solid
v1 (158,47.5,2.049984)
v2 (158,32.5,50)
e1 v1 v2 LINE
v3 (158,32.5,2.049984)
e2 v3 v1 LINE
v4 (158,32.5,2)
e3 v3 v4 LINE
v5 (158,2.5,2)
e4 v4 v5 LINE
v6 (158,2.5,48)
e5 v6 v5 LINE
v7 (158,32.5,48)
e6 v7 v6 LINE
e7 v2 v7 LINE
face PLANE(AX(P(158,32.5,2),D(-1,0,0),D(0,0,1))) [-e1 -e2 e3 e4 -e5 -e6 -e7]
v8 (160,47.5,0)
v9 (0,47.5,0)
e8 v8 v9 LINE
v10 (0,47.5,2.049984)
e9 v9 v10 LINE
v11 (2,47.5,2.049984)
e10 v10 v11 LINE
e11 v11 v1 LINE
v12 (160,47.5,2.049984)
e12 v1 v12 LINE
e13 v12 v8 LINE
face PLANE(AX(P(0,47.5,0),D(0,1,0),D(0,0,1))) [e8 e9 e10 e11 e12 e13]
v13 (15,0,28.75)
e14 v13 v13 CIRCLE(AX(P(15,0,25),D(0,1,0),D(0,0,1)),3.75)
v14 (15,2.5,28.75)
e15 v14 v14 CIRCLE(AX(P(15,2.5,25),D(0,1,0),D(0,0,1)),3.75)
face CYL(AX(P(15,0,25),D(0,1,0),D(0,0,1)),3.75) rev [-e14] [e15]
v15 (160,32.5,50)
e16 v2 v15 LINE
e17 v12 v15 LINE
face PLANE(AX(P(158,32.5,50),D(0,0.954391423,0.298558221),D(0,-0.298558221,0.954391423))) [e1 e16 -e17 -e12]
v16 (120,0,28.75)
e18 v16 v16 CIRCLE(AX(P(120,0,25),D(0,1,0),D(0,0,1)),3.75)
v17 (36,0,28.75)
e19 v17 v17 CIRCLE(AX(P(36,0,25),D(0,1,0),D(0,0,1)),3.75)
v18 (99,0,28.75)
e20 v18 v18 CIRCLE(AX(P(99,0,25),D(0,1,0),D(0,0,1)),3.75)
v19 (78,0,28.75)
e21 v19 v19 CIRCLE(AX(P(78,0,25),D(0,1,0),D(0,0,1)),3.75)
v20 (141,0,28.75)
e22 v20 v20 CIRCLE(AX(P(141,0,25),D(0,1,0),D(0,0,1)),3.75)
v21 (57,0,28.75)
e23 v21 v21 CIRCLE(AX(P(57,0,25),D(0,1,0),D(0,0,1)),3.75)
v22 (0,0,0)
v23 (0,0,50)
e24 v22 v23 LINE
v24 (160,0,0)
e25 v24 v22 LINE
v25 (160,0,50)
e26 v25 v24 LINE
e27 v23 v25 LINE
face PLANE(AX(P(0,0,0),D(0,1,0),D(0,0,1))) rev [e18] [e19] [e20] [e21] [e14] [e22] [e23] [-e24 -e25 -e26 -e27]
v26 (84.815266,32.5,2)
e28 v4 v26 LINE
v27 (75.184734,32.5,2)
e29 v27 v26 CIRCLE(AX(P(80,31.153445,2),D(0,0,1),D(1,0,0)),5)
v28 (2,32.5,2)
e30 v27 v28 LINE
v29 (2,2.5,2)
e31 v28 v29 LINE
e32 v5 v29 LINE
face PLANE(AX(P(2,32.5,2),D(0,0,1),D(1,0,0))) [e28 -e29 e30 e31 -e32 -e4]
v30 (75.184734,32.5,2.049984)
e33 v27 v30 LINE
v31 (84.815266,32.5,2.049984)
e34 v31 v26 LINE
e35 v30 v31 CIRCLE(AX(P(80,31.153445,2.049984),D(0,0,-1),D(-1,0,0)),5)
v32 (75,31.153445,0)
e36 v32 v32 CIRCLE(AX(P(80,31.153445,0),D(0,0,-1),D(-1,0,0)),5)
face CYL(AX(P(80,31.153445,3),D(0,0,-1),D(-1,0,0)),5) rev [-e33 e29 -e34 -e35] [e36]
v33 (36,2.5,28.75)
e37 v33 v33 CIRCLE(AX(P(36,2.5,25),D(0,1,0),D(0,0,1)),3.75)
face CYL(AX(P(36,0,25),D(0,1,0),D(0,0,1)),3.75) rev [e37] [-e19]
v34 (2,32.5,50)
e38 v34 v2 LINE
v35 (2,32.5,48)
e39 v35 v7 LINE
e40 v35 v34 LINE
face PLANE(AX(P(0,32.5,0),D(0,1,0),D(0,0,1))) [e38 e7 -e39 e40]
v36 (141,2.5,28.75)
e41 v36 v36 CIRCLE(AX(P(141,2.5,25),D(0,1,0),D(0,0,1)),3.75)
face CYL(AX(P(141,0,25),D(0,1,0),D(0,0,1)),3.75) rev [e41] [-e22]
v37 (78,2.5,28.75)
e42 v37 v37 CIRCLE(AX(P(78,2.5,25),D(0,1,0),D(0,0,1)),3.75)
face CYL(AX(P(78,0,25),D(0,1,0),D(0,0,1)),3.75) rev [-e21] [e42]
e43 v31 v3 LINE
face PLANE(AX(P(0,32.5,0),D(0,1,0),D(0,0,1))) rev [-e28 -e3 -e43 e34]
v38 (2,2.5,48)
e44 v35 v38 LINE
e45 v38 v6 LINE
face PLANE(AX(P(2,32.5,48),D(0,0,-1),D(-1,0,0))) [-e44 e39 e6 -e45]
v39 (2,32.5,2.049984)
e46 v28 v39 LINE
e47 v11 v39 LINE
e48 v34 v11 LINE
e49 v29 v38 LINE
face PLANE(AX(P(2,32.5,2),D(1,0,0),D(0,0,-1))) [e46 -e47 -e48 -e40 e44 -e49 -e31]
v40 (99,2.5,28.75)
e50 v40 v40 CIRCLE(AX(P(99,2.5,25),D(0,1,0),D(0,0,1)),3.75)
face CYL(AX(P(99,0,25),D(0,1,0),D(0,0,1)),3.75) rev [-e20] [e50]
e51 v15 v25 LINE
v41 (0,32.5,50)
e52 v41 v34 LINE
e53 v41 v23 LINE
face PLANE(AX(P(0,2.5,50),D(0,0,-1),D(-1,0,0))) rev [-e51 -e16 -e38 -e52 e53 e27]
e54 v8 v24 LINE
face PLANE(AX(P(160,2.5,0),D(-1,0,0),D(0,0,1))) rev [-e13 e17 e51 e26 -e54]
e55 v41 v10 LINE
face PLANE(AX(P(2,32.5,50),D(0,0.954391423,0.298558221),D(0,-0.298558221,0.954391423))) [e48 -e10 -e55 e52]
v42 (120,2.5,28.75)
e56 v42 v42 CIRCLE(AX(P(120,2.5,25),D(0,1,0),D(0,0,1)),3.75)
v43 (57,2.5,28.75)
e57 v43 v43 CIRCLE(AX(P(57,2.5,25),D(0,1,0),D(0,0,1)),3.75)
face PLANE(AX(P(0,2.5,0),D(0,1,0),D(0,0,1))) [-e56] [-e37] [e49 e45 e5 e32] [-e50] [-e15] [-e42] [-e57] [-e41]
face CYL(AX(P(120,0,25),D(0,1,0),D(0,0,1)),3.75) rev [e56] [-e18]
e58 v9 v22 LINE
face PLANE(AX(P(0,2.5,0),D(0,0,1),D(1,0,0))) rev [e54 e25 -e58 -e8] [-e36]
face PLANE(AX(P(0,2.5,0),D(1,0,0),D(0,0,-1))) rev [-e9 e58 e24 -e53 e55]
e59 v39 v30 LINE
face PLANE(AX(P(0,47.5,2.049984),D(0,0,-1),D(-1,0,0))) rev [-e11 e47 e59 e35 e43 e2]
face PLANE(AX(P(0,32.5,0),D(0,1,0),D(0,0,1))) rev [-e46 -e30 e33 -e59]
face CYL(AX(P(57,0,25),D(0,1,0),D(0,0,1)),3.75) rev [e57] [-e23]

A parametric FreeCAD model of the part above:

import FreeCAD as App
import Part
import Sketcher
Q = App.Units.Quantity

doc = App.newDocument("Part")
body = doc.addObject("PartDesign::Body", "Body")

sketch1 = body.newObject("Sketcher::SketchObject", "Sketch")
sketch1.AttachmentSupport = (doc.getObject("XZ_Plane"), [""])
sketch1.MapMode = "FlatFace"
sketch1.addGeometry(Part.LineSegment(App.Vector(0, 0, 0), App.Vector(0, 50, 0)), False)
sketch1.addGeometry(Part.LineSegment(App.Vector(0, 50, 0), App.Vector(160, 50, 0)), False)
sketch1.addGeometry(Part.LineSegment(App.Vector(160, 50, 0), App.Vector(160, 0, 0)), False)
sketch1.addGeometry(Part.LineSegment(App.Vector(160, 0, 0), App.Vector(0, 0, 0)), False)
sketch1.addConstraint(Sketcher.Constraint("Coincident", 0, 2, 1, 1))
sketch1.addConstraint(Sketcher.Constraint("Coincident", 1, 2, 2, 1))
sketch1.addConstraint(Sketcher.Constraint("Coincident", 2, 2, 3, 1))
sketch1.addConstraint(Sketcher.Constraint("Coincident", 3, 2, 0, 1))
sketch1.addConstraint(Sketcher.Constraint("Vertical", 0))
sketch1.addConstraint(Sketcher.Constraint("Horizontal", 1))
sketch1.addConstraint(Sketcher.Constraint("Vertical", 2))
sketch1.addConstraint(Sketcher.Constraint("Horizontal", 3))
sketch1.addConstraint(Sketcher.Constraint("Coincident", 3, 2, -1, 1))
sketch1.addConstraint(Sketcher.Constraint("DistanceX", 1, 1, 1, 2, Q("160 mm")))
sketch1.addConstraint(Sketcher.Constraint("DistanceY", 0, 1, 0, 2, Q("50 mm")))
pad1 = body.newObject("PartDesign::Pad", "Pad")
pad1.Profile = sketch1
pad1.Length = 2.5
pad1.Reversed = True

sketch2 = body.newObject("Sketcher::SketchObject", "Sketch001")
sketch2.AttachmentSupport = (doc.getObject("XZ_Plane"), [""])
sketch2.MapMode = "FlatFace"
sketch2.AttachmentOffset = App.Placement(App.Vector(0, 0, -2.5), App.Rotation())
sketch2.addGeometry(Part.Circle(App.Vector(15, 25, 0), App.Vector(0, 0, 1), 3.8), False)
sketch2.addGeometry(Part.Circle(App.Vector(36, 25, 0), App.Vector(0, 0, 1), 3.8), False)
sketch2.addGeometry(Part.Circle(App.Vector(57, 25, 0), App.Vector(0, 0, 1), 3.8), False)
sketch2.addGeometry(Part.Circle(App.Vector(78, 25, 0), App.Vector(0, 0, 1), 3.8), False)
sketch2.addGeometry(Part.Circle(App.Vector(99, 25, 0), App.Vector(0, 0, 1), 3.8), False)
sketch2.addGeometry(Part.Circle(App.Vector(120, 25, 0), App.Vector(0, 0, 1), 3.8), False)
sketch2.addGeometry(Part.Circle(App.Vector(141, 25, 0), App.Vector(0, 0, 1), 3.8), False)
sketch2.addConstraint(Sketcher.Constraint("Equal", 0, 1))
sketch2.addConstraint(Sketcher.Constraint("Equal", 1, 2))
sketch2.addConstraint(Sketcher.Constraint("Equal", 2, 3))
sketch2.addConstraint(Sketcher.Constraint("Equal", 3, 4))
sketch2.addConstraint(Sketcher.Constraint("Equal", 4, 5))
sketch2.addConstraint(Sketcher.Constraint("Equal", 5, 6))
sketch2.addConstraint(Sketcher.Constraint("Horizontal", 0, 3, 1, 3))
sketch2.addConstraint(Sketcher.Constraint("Horizontal", 1, 3, 2, 3))
sketch2.addConstraint(Sketcher.Constraint("Horizontal", 2, 3, 3, 3))
sketch2.addConstraint(Sketcher.Constraint("Horizontal", 3, 3, 4, 3))
sketch2.addConstraint(Sketcher.Constraint("Horizontal", 4, 3, 5, 3))
sketch2.addConstraint(Sketcher.Constraint("Horizontal", 5, 3, 6, 3))
sketch2.addConstraint(Sketcher.Constraint("Diameter", 0, Q("7.5 mm")))
sketch2.addConstraint(Sketcher.Constraint("DistanceX", -1, 1, 0, 3, Q("15 mm")))
sketch2.addConstraint(Sketcher.Constraint("DistanceY", -1, 1, 0, 3, Q("25 mm")))
sketch2.addConstraint(Sketcher.Constraint("DistanceX", -1, 1, 1, 3, Q("36 mm")))
sketch2.addConstraint(Sketcher.Constraint("DistanceX", -1, 1, 2, 3, Q("57 mm")))
sketch2.addConstraint(Sketcher.Constraint("DistanceX", -1, 1, 3, 3, Q("78 mm")))
sketch2.addConstraint(Sketcher.Constraint("DistanceX", -1, 1, 4, 3, Q("99 mm")))
sketch2.addConstraint(Sketcher.Constraint("DistanceX", -1, 1, 5, 3, Q("120 mm")))
sketch2.addConstraint(Sketcher.Constraint("DistanceX", -1, 1, 6, 3, Q("141 mm")))
pocket1 = body.newObject("PartDesign::Pocket", "Pocket")
pocket1.Profile = sketch2
pocket1.Type = "ThroughAll"
pocket1.Reversed = True

sketch3 = body.newObject("Sketcher::SketchObject", "Sketch002")
sketch3.AttachmentSupport = (doc.getObject("XZ_Plane"), [""])
sketch3.MapMode = "FlatFace"
sketch3.AttachmentOffset = App.Placement(App.Vector(0, 0, -2.5), App.Rotation())
sketch3.addGeometry(Part.LineSegment(App.Vector(0, 0, 0), App.Vector(0, 50, 0)), False)
sketch3.addGeometry(Part.LineSegment(App.Vector(0, 50, 0), App.Vector(160, 50, 0)), False)
sketch3.addGeometry(Part.LineSegment(App.Vector(160, 50, 0), App.Vector(160, 0, 0)), False)
sketch3.addGeometry(Part.LineSegment(App.Vector(160, 0, 0), App.Vector(0, 0, 0)), False)
sketch3.addGeometry(Part.LineSegment(App.Vector(158, 48, 0), App.Vector(2, 48, 0)), False)
sketch3.addGeometry(Part.LineSegment(App.Vector(2, 48, 0), App.Vector(2, 2, 0)), False)
sketch3.addGeometry(Part.LineSegment(App.Vector(2, 2, 0), App.Vector(158, 2, 0)), False)
sketch3.addGeometry(Part.LineSegment(App.Vector(158, 2, 0), App.Vector(158, 48, 0)), False)
sketch3.addConstraint(Sketcher.Constraint("Coincident", 0, 2, 1, 1))
sketch3.addConstraint(Sketcher.Constraint("Coincident", 1, 2, 2, 1))
sketch3.addConstraint(Sketcher.Constraint("Coincident", 2, 2, 3, 1))
sketch3.addConstraint(Sketcher.Constraint("Coincident", 3, 2, 0, 1))
sketch3.addConstraint(Sketcher.Constraint("Coincident", 4, 2, 5, 1))
sketch3.addConstraint(Sketcher.Constraint("Coincident", 5, 2, 6, 1))
sketch3.addConstraint(Sketcher.Constraint("Coincident", 6, 2, 7, 1))
sketch3.addConstraint(Sketcher.Constraint("Coincident", 7, 2, 4, 1))
sketch3.addConstraint(Sketcher.Constraint("Vertical", 0))
sketch3.addConstraint(Sketcher.Constraint("Horizontal", 1))
sketch3.addConstraint(Sketcher.Constraint("Vertical", 2))
sketch3.addConstraint(Sketcher.Constraint("Horizontal", 3))
sketch3.addConstraint(Sketcher.Constraint("Horizontal", 4))
sketch3.addConstraint(Sketcher.Constraint("Vertical", 5))
sketch3.addConstraint(Sketcher.Constraint("Horizontal", 6))
sketch3.addConstraint(Sketcher.Constraint("Vertical", 7))
sketch3.addConstraint(Sketcher.Constraint("Coincident", 3, 2, -1, 1))
sketch3.addConstraint(Sketcher.Constraint("DistanceX", 1, 1, 1, 2, Q("160 mm")))
sketch3.addConstraint(Sketcher.Constraint("DistanceX", 4, 2, 4, 1, Q("156 mm")))
sketch3.addConstraint(Sketcher.Constraint("DistanceY", 0, 1, 0, 2, Q("50 mm")))
sketch3.addConstraint(Sketcher.Constraint("DistanceY", 5, 2, 5, 1, Q("46 mm")))
sketch3.addConstraint(Sketcher.Constraint("DistanceX", -1, 1, 4, 2, Q("2 mm")))
sketch3.addConstraint(Sketcher.Constraint("DistanceY", -1, 1, 4, 2, Q("48 mm")))
pad2 = body.newObject("PartDesign::Pad", "Pad001")
pad2.Profile = sketch3
pad2.Length = 30
pad2.Reversed = True

sketch4 = body.newObject("Sketcher::SketchObject", "Sketch003")
sketch4.AttachmentSupport = (doc.getObject("XZ_Plane"), [""])
sketch4.MapMode = "FlatFace"
sketch4.AttachmentOffset = App.Placement(App.Vector(0, 0, -32.5), App.Rotation())
sketch4.addGeometry(Part.LineSegment(App.Vector(0, 0, 0), App.Vector(0, 2, 0)), False)
sketch4.addGeometry(Part.LineSegment(App.Vector(0, 2, 0), App.Vector(160, 2, 0)), False)
sketch4.addGeometry(Part.LineSegment(App.Vector(160, 2, 0), App.Vector(160, 0, 0)), False)
sketch4.addGeometry(Part.LineSegment(App.Vector(160, 0, 0), App.Vector(0, 0, 0)), False)
sketch4.addConstraint(Sketcher.Constraint("Coincident", 0, 2, 1, 1))
sketch4.addConstraint(Sketcher.Constraint("Coincident", 1, 2, 2, 1))
sketch4.addConstraint(Sketcher.Constraint("Coincident", 2, 2, 3, 1))
sketch4.addConstraint(Sketcher.Constraint("Coincident", 3, 2, 0, 1))
sketch4.addConstraint(Sketcher.Constraint("Vertical", 0))
sketch4.addConstraint(Sketcher.Constraint("Horizontal", 1))
sketch4.addConstraint(Sketcher.Constraint("Vertical", 2))
sketch4.addConstraint(Sketcher.Constraint("Horizontal", 3))
sketch4.addConstraint(Sketcher.Constraint("Coincident", 3, 2, -1, 1))
sketch4.addConstraint(Sketcher.Constraint("DistanceX", 1, 1, 1, 2, Q("160 mm")))
sketch4.addConstraint(Sketcher.Constraint("DistanceY", 0, 1, 0, 2, Q("2.049984 mm")))
pad3 = body.newObject("PartDesign::Pad", "Pad002")
pad3.Profile = sketch4
pad3.Length = 15
pad3.Reversed = True

sketch5 = body.newObject("Sketcher::SketchObject", "Sketch004")
sketch5.AttachmentSupport = (doc.getObject("YZ_Plane"), [""])
sketch5.MapMode = "FlatFace"
sketch5.AttachmentOffset = App.Placement(App.Vector(0, 0, 160), App.Rotation())
sketch5.addGeometry(Part.LineSegment(App.Vector(32, 50, 0), App.Vector(32, 2, 0)), False)
sketch5.addGeometry(Part.LineSegment(App.Vector(32, 2, 0), App.Vector(48, 2, 0)), False)
sketch5.addGeometry(Part.LineSegment(App.Vector(48, 2, 0), App.Vector(32, 50, 0)), False)
sketch5.addConstraint(Sketcher.Constraint("Coincident", 0, 2, 1, 1))
sketch5.addConstraint(Sketcher.Constraint("Coincident", 1, 2, 2, 1))
sketch5.addConstraint(Sketcher.Constraint("Coincident", 2, 2, 0, 1))
sketch5.addConstraint(Sketcher.Constraint("Vertical", 0))
sketch5.addConstraint(Sketcher.Constraint("Horizontal", 1))
sketch5.addConstraint(Sketcher.Constraint("DistanceX", 1, 1, 1, 2, Q("15 mm")))
sketch5.addConstraint(Sketcher.Constraint("DistanceY", -1, 1, 2, 2, Q("50 mm")))
sketch5.addConstraint(Sketcher.Constraint("DistanceX", -1, 1, 0, 2, Q("32.5 mm")))
sketch5.addConstraint(Sketcher.Constraint("DistanceY", 0, 2, 0, 1, Q("47.950016 mm")))
pad4 = body.newObject("PartDesign::Pad", "Pad003")
pad4.Profile = sketch5
pad4.Length = 2
pad4.Reversed = True

sketch6 = body.newObject("Sketcher::SketchObject", "Sketch005")
sketch6.AttachmentSupport = (doc.getObject("YZ_Plane"), [""])
sketch6.MapMode = "FlatFace"
sketch6.addGeometry(Part.LineSegment(App.Vector(48, 2, 0), App.Vector(32, 2, 0)), False)
sketch6.addGeometry(Part.LineSegment(App.Vector(32, 2, 0), App.Vector(32, 50, 0)), False)
sketch6.addGeometry(Part.LineSegment(App.Vector(32, 50, 0), App.Vector(48, 2, 0)), False)
sketch6.addConstraint(Sketcher.Constraint("Coincident", 0, 2, 1, 1))
sketch6.addConstraint(Sketcher.Constraint("Coincident", 1, 2, 2, 1))
sketch6.addConstraint(Sketcher.Constraint("Coincident", 2, 2, 0, 1))
sketch6.addConstraint(Sketcher.Constraint("Horizontal", 0))
sketch6.addConstraint(Sketcher.Constraint("Vertical", 1))
sketch6.addConstraint(Sketcher.Constraint("DistanceX", 0, 2, 0, 1, Q("15 mm")))
sketch6.addConstraint(Sketcher.Constraint("DistanceY", -1, 1, 1, 2, Q("50 mm")))
sketch6.addConstraint(Sketcher.Constraint("DistanceX", -1, 1, 0, 2, Q("32.5 mm")))
sketch6.addConstraint(Sketcher.Constraint("DistanceY", 1, 1, 1, 2, Q("47.950016 mm")))
pad5 = body.newObject("PartDesign::Pad", "Pad004")
pad5.Profile = sketch6
pad5.Length = 2

sketch7 = body.newObject("Sketcher::SketchObject", "Sketch006")
sketch7.AttachmentSupport = (doc.getObject("XY_Plane"), [""])
sketch7.MapMode = "FlatFace"
sketch7.addGeometry(Part.Circle(App.Vector(80, 31, 0), App.Vector(0, 0, 1), 5), False)
sketch7.addConstraint(Sketcher.Constraint("Diameter", 0, Q("10 mm")))
sketch7.addConstraint(Sketcher.Constraint("DistanceX", -1, 1, 0, 3, Q("80 mm")))
sketch7.addConstraint(Sketcher.Constraint("DistanceY", -1, 1, 0, 3, Q("31.153445 mm")))
pocket2 = body.newObject("PartDesign::Pocket", "Pocket001")
pocket2.Profile = sketch7
pocket2.Length = 3
pocket2.Reversed = True

doc.recompute()
